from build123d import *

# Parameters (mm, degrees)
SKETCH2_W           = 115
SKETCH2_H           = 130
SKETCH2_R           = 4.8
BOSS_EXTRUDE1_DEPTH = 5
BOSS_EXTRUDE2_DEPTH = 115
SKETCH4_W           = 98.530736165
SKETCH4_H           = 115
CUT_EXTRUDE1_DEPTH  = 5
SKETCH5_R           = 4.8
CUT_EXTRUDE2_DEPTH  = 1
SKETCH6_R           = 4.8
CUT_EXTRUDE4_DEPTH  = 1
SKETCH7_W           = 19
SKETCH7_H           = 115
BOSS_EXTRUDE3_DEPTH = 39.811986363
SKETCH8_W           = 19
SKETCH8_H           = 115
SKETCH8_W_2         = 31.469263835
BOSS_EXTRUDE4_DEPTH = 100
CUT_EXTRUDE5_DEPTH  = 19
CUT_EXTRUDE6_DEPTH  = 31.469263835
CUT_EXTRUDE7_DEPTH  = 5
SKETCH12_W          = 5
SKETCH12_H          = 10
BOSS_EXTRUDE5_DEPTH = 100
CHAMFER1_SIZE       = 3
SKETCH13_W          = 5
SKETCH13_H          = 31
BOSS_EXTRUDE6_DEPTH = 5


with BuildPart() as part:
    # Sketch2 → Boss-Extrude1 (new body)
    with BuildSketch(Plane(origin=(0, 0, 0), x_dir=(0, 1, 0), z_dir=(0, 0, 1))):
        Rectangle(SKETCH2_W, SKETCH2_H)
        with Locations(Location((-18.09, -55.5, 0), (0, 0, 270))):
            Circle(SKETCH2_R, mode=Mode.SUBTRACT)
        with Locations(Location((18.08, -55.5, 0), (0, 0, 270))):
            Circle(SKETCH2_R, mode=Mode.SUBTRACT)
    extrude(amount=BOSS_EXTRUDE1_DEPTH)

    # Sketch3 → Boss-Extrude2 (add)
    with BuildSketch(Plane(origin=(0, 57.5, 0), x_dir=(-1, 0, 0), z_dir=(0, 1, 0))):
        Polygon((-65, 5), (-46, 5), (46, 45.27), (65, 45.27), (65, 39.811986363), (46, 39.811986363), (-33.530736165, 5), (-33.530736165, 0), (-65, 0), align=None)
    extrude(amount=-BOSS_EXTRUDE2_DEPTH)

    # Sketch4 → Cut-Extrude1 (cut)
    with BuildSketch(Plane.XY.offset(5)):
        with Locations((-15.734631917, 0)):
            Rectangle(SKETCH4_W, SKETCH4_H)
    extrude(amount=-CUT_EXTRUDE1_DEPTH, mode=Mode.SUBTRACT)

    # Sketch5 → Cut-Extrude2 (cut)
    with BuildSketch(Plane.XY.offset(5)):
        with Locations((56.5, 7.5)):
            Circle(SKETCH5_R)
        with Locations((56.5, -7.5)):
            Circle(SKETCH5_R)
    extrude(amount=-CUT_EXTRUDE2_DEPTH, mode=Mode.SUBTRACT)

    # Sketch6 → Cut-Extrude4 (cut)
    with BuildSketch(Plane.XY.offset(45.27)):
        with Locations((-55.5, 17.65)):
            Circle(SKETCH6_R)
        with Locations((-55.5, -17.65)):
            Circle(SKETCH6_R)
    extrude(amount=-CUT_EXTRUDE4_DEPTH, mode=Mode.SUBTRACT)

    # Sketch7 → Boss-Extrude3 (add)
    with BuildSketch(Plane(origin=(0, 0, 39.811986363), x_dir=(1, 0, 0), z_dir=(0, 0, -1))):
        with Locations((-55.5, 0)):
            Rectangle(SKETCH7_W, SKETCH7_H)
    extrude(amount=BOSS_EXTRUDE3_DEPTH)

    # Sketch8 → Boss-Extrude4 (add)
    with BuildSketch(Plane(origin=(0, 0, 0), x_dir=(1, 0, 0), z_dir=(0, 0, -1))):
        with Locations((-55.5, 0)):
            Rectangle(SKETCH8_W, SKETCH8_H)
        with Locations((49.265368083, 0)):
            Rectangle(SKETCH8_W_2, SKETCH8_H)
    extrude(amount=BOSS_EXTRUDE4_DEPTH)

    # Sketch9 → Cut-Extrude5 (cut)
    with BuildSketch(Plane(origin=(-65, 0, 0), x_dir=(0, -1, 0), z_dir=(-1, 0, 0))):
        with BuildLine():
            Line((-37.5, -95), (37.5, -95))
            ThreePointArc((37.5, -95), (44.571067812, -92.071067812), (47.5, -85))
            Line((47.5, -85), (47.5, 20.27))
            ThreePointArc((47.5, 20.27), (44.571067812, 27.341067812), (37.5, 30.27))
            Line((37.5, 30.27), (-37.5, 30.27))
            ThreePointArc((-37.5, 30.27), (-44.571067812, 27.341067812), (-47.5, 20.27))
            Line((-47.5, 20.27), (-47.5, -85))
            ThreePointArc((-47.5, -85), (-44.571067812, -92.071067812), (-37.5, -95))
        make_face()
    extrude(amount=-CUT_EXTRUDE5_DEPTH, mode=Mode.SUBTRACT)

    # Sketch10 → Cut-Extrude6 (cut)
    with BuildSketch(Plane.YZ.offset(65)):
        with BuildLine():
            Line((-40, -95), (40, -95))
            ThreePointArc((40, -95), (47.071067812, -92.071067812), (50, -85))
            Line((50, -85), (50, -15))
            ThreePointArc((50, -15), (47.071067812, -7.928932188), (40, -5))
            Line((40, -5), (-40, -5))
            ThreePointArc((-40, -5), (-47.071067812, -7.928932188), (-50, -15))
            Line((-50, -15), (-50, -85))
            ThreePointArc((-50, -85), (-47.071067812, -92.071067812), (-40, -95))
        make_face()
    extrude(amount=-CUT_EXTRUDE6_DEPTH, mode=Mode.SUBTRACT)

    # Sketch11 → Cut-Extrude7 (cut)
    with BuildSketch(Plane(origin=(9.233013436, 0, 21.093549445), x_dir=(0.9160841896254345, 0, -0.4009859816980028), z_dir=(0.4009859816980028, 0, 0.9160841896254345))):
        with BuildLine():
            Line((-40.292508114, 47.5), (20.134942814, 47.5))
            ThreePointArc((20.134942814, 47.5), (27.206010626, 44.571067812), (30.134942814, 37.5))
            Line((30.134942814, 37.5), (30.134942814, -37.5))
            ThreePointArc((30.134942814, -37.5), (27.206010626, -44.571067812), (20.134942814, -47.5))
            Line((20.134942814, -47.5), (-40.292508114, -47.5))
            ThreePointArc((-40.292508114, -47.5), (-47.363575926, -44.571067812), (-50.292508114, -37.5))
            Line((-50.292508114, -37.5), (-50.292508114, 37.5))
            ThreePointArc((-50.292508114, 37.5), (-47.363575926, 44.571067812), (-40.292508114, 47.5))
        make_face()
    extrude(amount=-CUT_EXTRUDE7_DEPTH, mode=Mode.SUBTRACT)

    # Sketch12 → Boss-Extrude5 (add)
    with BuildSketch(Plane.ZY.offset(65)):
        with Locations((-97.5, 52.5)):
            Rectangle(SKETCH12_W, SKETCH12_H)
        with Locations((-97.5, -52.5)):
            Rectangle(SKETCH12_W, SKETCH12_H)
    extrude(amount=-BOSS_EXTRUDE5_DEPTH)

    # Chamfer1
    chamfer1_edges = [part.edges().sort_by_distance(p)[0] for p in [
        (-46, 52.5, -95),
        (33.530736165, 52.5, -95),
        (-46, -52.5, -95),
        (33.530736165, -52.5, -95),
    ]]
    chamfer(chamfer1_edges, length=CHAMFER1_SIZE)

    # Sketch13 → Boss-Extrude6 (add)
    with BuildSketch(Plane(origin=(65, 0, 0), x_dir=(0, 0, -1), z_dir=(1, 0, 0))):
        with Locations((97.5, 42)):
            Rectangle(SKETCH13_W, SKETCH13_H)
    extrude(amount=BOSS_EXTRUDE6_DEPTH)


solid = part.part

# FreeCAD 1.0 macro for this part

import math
import FreeCAD as App
import Part
import Sketcher
Q = App.Units.Quantity


def edges_at(feature, points):
    """Names of the edges that pass closest to the given points."""
    edges = feature.Shape.Edges
    near = lambda p: min(range(len(edges)), key=lambda i: edges[i].distToShape(Part.Vertex(*p))[0])
    return sorted({f"Edge{near(p) + 1}" for p in points})

doc = App.newDocument("Part")
body = doc.addObject("PartDesign::Body", "Body")

sketch1 = doc.addObject("Sketcher::SketchObject", "Sketch")
body.addObject(sketch1)
sketch1.AttachmentSupport = (doc.XY_Plane, [""])
sketch1.MapMode = "FlatFace"
sketch1.addGeometry(Part.LineSegment(App.Vector(-65, -57.5, 0), App.Vector(65, -57.5, 0)), False)
sketch1.addGeometry(Part.LineSegment(App.Vector(65, -57.5, 0), App.Vector(65, 57.5, 0)), False)
sketch1.addGeometry(Part.LineSegment(App.Vector(65, 57.5, 0), App.Vector(-65, 57.5, 0)), False)
sketch1.addGeometry(Part.LineSegment(App.Vector(-65, 57.5, 0), App.Vector(-65, -57.5, 0)), False)
sketch1.addGeometry(Part.Circle(App.Vector(55.5, -18.1, 0), App.Vector(0, 0, 1), 4.8), False)
sketch1.addGeometry(Part.Circle(App.Vector(55.5, 18.1, 0), App.Vector(0, 0, 1), 4.8), False)
sketch1.addConstraint(Sketcher.Constraint("Coincident", 0, 2, 1, 1))
sketch1.addConstraint(Sketcher.Constraint("Coincident", 1, 2, 2, 1))
sketch1.addConstraint(Sketcher.Constraint("Coincident", 2, 2, 3, 1))
sketch1.addConstraint(Sketcher.Constraint("Coincident", 3, 2, 0, 1))
sketch1.addConstraint(Sketcher.Constraint("Horizontal", 0))
sketch1.addConstraint(Sketcher.Constraint("Vertical", 1))
sketch1.addConstraint(Sketcher.Constraint("Horizontal", 2))
sketch1.addConstraint(Sketcher.Constraint("Vertical", 3))
sketch1.addConstraint(Sketcher.Constraint("Equal", 4, 5))
sketch1.addConstraint(Sketcher.Constraint("Symmetric", 0, 2, 2, 2, -1, 1))
sketch1.addConstraint(Sketcher.Constraint("Vertical", 4, 3, 5, 3))
sketch1.addConstraint(Sketcher.Constraint("Diameter", 4, Q("9.6 mm")))
sketch1.addConstraint(Sketcher.Constraint("DistanceX", 0, 1, 0, 2, Q("130 mm")))
sketch1.addConstraint(Sketcher.Constraint("DistanceY", 1, 1, 1, 2, Q("115 mm")))
sketch1.addConstraint(Sketcher.Constraint("DistanceX", -1, 1, 4, 3, Q("55.5 mm")))
sketch1.addConstraint(Sketcher.Constraint("DistanceY", 4, 3, -1, 1, Q("18.09 mm")))
sketch1.addConstraint(Sketcher.Constraint("DistanceY", -1, 1, 5, 3, Q("18.08 mm")))
pad1 = doc.addObject("PartDesign::Pad", "Pad")
body.addObject(pad1)
pad1.Profile = sketch1
pad1.Length = 5

sketch2 = doc.addObject("Sketcher::SketchObject", "Sketch001")
body.addObject(sketch2)
sketch2.AttachmentSupport = (doc.XZ_Plane, [""])
sketch2.MapMode = "FlatFace"
sketch2.AttachmentOffset = App.Placement(App.Vector(0, 0, -57.5), App.Rotation())
sketch2.addGeometry(Part.LineSegment(App.Vector(46, 5, 0), App.Vector(65, 5, 0)), False)
sketch2.addGeometry(Part.LineSegment(App.Vector(65, 5, 0), App.Vector(65, 0, 0)), False)
sketch2.addGeometry(Part.LineSegment(App.Vector(65, 0, 0), App.Vector(34, 0, 0)), False)
sketch2.addGeometry(Part.LineSegment(App.Vector(34, 0, 0), App.Vector(34, 5, 0)), False)
sketch2.addGeometry(Part.LineSegment(App.Vector(34, 5, 0), App.Vector(-46, 40, 0)), False)
sketch2.addGeometry(Part.LineSegment(App.Vector(-46, 40, 0), App.Vector(-65, 40, 0)), False)
sketch2.addGeometry(Part.LineSegment(App.Vector(-65, 40, 0), App.Vector(-65, 45, 0)), False)
sketch2.addGeometry(Part.LineSegment(App.Vector(-65, 45, 0), App.Vector(-46, 45, 0)), False)
sketch2.addGeometry(Part.LineSegment(App.Vector(-46, 45, 0), App.Vector(46, 5, 0)), False)
sketch2.addConstraint(Sketcher.Constraint("Coincident", 0, 2, 1, 1))
sketch2.addConstraint(Sketcher.Constraint("Coincident", 1, 2, 2, 1))
sketch2.addConstraint(Sketcher.Constraint("Coincident", 2, 2, 3, 1))
sketch2.addConstraint(Sketcher.Constraint("Coincident", 3, 2, 4, 1))
sketch2.addConstraint(Sketcher.Constraint("Coincident", 4, 2, 5, 1))
sketch2.addConstraint(Sketcher.Constraint("Coincident", 5, 2, 6, 1))
sketch2.addConstraint(Sketcher.Constraint("Coincident", 6, 2, 7, 1))
sketch2.addConstraint(Sketcher.Constraint("Coincident", 7, 2, 8, 1))
sketch2.addConstraint(Sketcher.Constraint("Coincident", 8, 2, 0, 1))
sketch2.addConstraint(Sketcher.Constraint("Horizontal", 0))
sketch2.addConstraint(Sketcher.Constraint("Vertical", 1))
sketch2.addConstraint(Sketcher.Constraint("Horizontal", 2))
sketch2.addConstraint(Sketcher.Constraint("Vertical", 3))
sketch2.addConstraint(Sketcher.Constraint("Horizontal", 5))
sketch2.addConstraint(Sketcher.Constraint("Vertical", 6))
sketch2.addConstraint(Sketcher.Constraint("Horizontal", 7))
sketch2.addConstraint(Sketcher.Constraint("PointOnObject", 1, 2, -1))
sketch2.addConstraint(Sketcher.Constraint("Parallel", 4, 8))
sketch2.addConstraint(Sketcher.Constraint("Horizontal", 0, 2, 3, 2))
sketch2.addConstraint(Sketcher.Constraint("Vertical", 4, 2, 7, 2))
sketch2.addConstraint(Sketcher.Constraint("Equal", 0, 5))
sketch2.addConstraint(Sketcher.Constraint("DistanceX", 0, 1, 0, 2, Q("19 mm")))
sketch2.addConstraint(Sketcher.Constraint("DistanceY", 1, 2, 1, 1, Q("5 mm")))
sketch2.addConstraint(Sketcher.Constraint("DistanceX", -1, 1, 0, 2, Q("65 mm")))
sketch2.addConstraint(Sketcher.Constraint("DistanceX", 4, 2, -1, 1, Q("46 mm")))
sketch2.addConstraint(Sketcher.Constraint("DistanceY", -1, 1, 6, 2, Q("45.27 mm")))
sketch2.addConstraint(Sketcher.Constraint("Distance", 4, Q("86.815969 mm")))
pad2 = doc.addObject("PartDesign::Pad", "Pad001")
body.addObject(pad2)
pad2.Profile = sketch2
pad2.Length = 115

sketch3 = doc.addObject("Sketcher::SketchObject", "Sketch002")
body.addObject(sketch3)
sketch3.AttachmentSupport = (doc.XY_Plane, [""])
sketch3.MapMode = "FlatFace"
sketch3.AttachmentOffset = App.Placement(App.Vector(0, 0, 5), App.Rotation())
sketch3.addGeometry(Part.LineSegment(App.Vector(-65, 58, 0), App.Vector(-65, -58, 0)), False)
sketch3.addGeometry(Part.LineSegment(App.Vector(-65, -58, 0), App.Vector(34, -58, 0)), False)
sketch3.addGeometry(Part.LineSegment(App.Vector(34, -58, 0), App.Vector(34, 58, 0)), False)
sketch3.addGeometry(Part.LineSegment(App.Vector(34, 58, 0), App.Vector(-65, 58, 0)), False)
sketch3.addConstraint(Sketcher.Constraint("Coincident", 0, 2, 1, 1))
sketch3.addConstraint(Sketcher.Constraint("Coincident", 1, 2, 2, 1))
sketch3.addConstraint(Sketcher.Constraint("Coincident", 2, 2, 3, 1))
sketch3.addConstraint(Sketcher.Constraint("Coincident", 3, 2, 0, 1))
sketch3.addConstraint(Sketcher.Constraint("Vertical", 0))
sketch3.addConstraint(Sketcher.Constraint("Horizontal", 1))
sketch3.addConstraint(Sketcher.Constraint("Vertical", 2))
sketch3.addConstraint(Sketcher.Constraint("Horizontal", 3))
sketch3.addConstraint(Sketcher.Constraint("DistanceY", 0, 2, 0, 1, Q("115 mm")))
sketch3.addConstraint(Sketcher.Constraint("DistanceX", 0, 2, -1, 1, Q("65 mm")))
sketch3.addConstraint(Sketcher.Constraint("DistanceY", 0, 2, -1, 1, Q("57.5 mm")))
sketch3.addConstraint(Sketcher.Constraint("DistanceX", 1, 1, 1, 2, Q("98.530736 mm")))
pocket1 = doc.addObject("PartDesign::Pocket", "Pocket")
body.addObject(pocket1)
pocket1.Profile = sketch3
pocket1.Length = 5

sketch4 = doc.addObject("Sketcher::SketchObject", "Sketch003")
body.addObject(sketch4)
sketch4.AttachmentSupport = (doc.XY_Plane, [""])
sketch4.MapMode = "FlatFace"
sketch4.AttachmentOffset = App.Placement(App.Vector(0, 0, 5), App.Rotation())
sketch4.addGeometry(Part.Circle(App.Vector(56.5, 7.5, 0), App.Vector(0, 0, 1), 4.8), False)
sketch4.addGeometry(Part.Circle(App.Vector(56.5, -7.5, 0), App.Vector(0, 0, 1), 4.8), False)
sketch4.addConstraint(Sketcher.Constraint("Equal", 0, 1))
sketch4.addConstraint(Sketcher.Constraint("Symmetric", 0, 3, 1, 3, -1))
sketch4.addConstraint(Sketcher.Constraint("Diameter", 0, Q("9.6 mm")))
sketch4.addConstraint(Sketcher.Constraint("DistanceY", 1, 3, 0, 3, Q("15 mm")))
sketch4.addConstraint(Sketcher.Constraint("DistanceX", -1, 1, 0, 3, Q("56.5 mm")))
pocket2 = doc.addObject("PartDesign::Pocket", "Pocket001")
body.addObject(pocket2)
pocket2.Profile = sketch4
pocket2.Length = 1

sketch5 = doc.addObject("Sketcher::SketchObject", "Sketch004")
body.addObject(sketch5)
sketch5.AttachmentSupport = (doc.XY_Plane, [""])
sketch5.MapMode = "FlatFace"
sketch5.AttachmentOffset = App.Placement(App.Vector(0, 0, 45.27), App.Rotation())
sketch5.addGeometry(Part.Circle(App.Vector(-55.5, 17.6, 0), App.Vector(0, 0, 1), 4.8), False)
sketch5.addGeometry(Part.Circle(App.Vector(-55.5, -17.6, 0), App.Vector(0, 0, 1), 4.8), False)
sketch5.addConstraint(Sketcher.Constraint("Equal", 0, 1))
sketch5.addConstraint(Sketcher.Constraint("Symmetric", 0, 3, 1, 3, -1))
sketch5.addConstraint(Sketcher.Constraint("Diameter", 0, Q("9.6 mm")))
sketch5.addConstraint(Sketcher.Constraint("DistanceX", 0, 3, -1, 1, Q("55.5 mm")))
sketch5.addConstraint(Sketcher.Constraint("DistanceY", 1, 3, 0, 3, Q("35.3 mm")))
pocket3 = doc.addObject("PartDesign::Pocket", "Pocket002")
body.addObject(pocket3)
pocket3.Profile = sketch5
pocket3.Length = 1

sketch6 = doc.addObject("Sketcher::SketchObject", "Sketch005")
body.addObject(sketch6)
sketch6.AttachmentSupport = (doc.XY_Plane, [""])
sketch6.MapMode = "FlatFace"
sketch6.AttachmentOffset = App.Placement(App.Vector(0, 0, 39.811986), App.Rotation())
sketch6.addGeometry(Part.LineSegment(App.Vector(-65, -58, 0), App.Vector(-65, 58, 0)), False)
sketch6.addGeometry(Part.LineSegment(App.Vector(-65, 58, 0), App.Vector(-46, 58, 0)), False)
sketch6.addGeometry(Part.LineSegment(App.Vector(-46, 58, 0), App.Vector(-46, -58, 0)), False)
sketch6.addGeometry(Part.LineSegment(App.Vector(-46, -58, 0), App.Vector(-65, -58, 0)), False)
sketch6.addConstraint(Sketcher.Constraint("Coincident", 0, 2, 1, 1))
sketch6.addConstraint(Sketcher.Constraint("Coincident", 1, 2, 2, 1))
sketch6.addConstraint(Sketcher.Constraint("Coincident", 2, 2, 3, 1))
sketch6.addConstraint(Sketcher.Constraint("Coincident", 3, 2, 0, 1))
sketch6.addConstraint(Sketcher.Constraint("Vertical", 0))
sketch6.addConstraint(Sketcher.Constraint("Horizontal", 1))
sketch6.addConstraint(Sketcher.Constraint("Vertical", 2))
sketch6.addConstraint(Sketcher.Constraint("Horizontal", 3))
sketch6.addConstraint(Sketcher.Constraint("DistanceX", 1, 1, 1, 2, Q("19 mm")))
sketch6.addConstraint(Sketcher.Constraint("DistanceY", 0, 1, 0, 2, Q("115 mm")))
sketch6.addConstraint(Sketcher.Constraint("DistanceX", 0, 2, -1, 1, Q("65 mm")))
sketch6.addConstraint(Sketcher.Constraint("DistanceY", -1, 1, 0, 2, Q("57.5 mm")))
pad3 = doc.addObject("PartDesign::Pad", "Pad002")
body.addObject(pad3)
pad3.Profile = sketch6
pad3.Length = 39.811986
pad3.Reversed = True

sketch7 = doc.addObject("Sketcher::SketchObject", "Sketch006")
body.addObject(sketch7)
sketch7.AttachmentSupport = (doc.XY_Plane, [""])
sketch7.MapMode = "FlatFace"
sketch7.addGeometry(Part.LineSegment(App.Vector(-65, -58, 0), App.Vector(-65, 58, 0)), False)
sketch7.addGeometry(Part.LineSegment(App.Vector(-65, 58, 0), App.Vector(-46, 58, 0)), False)
sketch7.addGeometry(Part.LineSegment(App.Vector(-46, 58, 0), App.Vector(-46, -58, 0)), False)
sketch7.addGeometry(Part.LineSegment(App.Vector(-46, -58, 0), App.Vector(-65, -58, 0)), False)
sketch7.addGeometry(Part.LineSegment(App.Vector(34, -58, 0), App.Vector(34, 58, 0)), False)
sketch7.addGeometry(Part.LineSegment(App.Vector(34, 58, 0), App.Vector(65, 58, 0)), False)
sketch7.addGeometry(Part.LineSegment(App.Vector(65, 58, 0), App.Vector(65, -58, 0)), False)
sketch7.addGeometry(Part.LineSegment(App.Vector(65, -58, 0), App.Vector(34, -58, 0)), False)
sketch7.addConstraint(Sketcher.Constraint("Coincident", 0, 2, 1, 1))
sketch7.addConstraint(Sketcher.Constraint("Coincident", 1, 2, 2, 1))
sketch7.addConstraint(Sketcher.Constraint("Coincident", 2, 2, 3, 1))
sketch7.addConstraint(Sketcher.Constraint("Coincident", 3, 2, 0, 1))
sketch7.addConstraint(Sketcher.Constraint("Coincident", 4, 2, 5, 1))
sketch7.addConstraint(Sketcher.Constraint("Coincident", 5, 2, 6, 1))
sketch7.addConstraint(Sketcher.Constraint("Coincident", 6, 2, 7, 1))
sketch7.addConstraint(Sketcher.Constraint("Coincident", 7, 2, 4, 1))
sketch7.addConstraint(Sketcher.Constraint("Vertical", 0))
sketch7.addConstraint(Sketcher.Constraint("Horizontal", 1))
sketch7.addConstraint(Sketcher.Constraint("Vertical", 2))
sketch7.addConstraint(Sketcher.Constraint("Horizontal", 3))
sketch7.addConstraint(Sketcher.Constraint("Vertical", 4))
sketch7.addConstraint(Sketcher.Constraint("Horizontal", 5))
sketch7.addConstraint(Sketcher.Constraint("Vertical", 6))
sketch7.addConstraint(Sketcher.Constraint("Horizontal", 7))
sketch7.addConstraint(Sketcher.Constraint("Symmetric", 3, 2, 5, 2, -1, 1))
sketch7.addConstraint(Sketcher.Constraint("Horizontal", 1, 2, 4, 2))
sketch7.addConstraint(Sketcher.Constraint("Horizontal", 3, 2, 6, 2))
sketch7.addConstraint(Sketcher.Constraint("DistanceX", 1, 1, 1, 2, Q("19 mm")))
sketch7.addConstraint(Sketcher.Constraint("DistanceY", 0, 1, 0, 2, Q("115 mm")))
sketch7.addConstraint(Sketcher.Constraint("DistanceX", 0, 2, -1, 1, Q("65 mm")))
sketch7.addConstraint(Sketcher.Constraint("DistanceX", 5, 1, 5, 2, Q("31.469264 mm")))
pad4 = doc.addObject("PartDesign::Pad", "Pad003")
body.addObject(pad4)
pad4.Profile = sketch7
pad4.Length = 100
pad4.Reversed = True

sketch8 = doc.addObject("Sketcher::SketchObject", "Sketch007")
body.addObject(sketch8)
sketch8.AttachmentSupport = (doc.YZ_Plane, [""])
sketch8.MapMode = "FlatFace"
sketch8.AttachmentOffset = App.Placement(App.Vector(0, 0, -65), App.Rotation())
sketch8.addGeometry(Part.LineSegment(App.Vector(38, -95, 0), App.Vector(-38, -95, 0)), False)
sketch8.addGeometry(Part.ArcOfCircle(Part.Circle(App.Vector(-38, -85, 0), App.Vector(0, 0, 1), 10), math.radians(180), math.radians(270)), False)
sketch8.addGeometry(Part.LineSegment(App.Vector(-48, -85, 0), App.Vector(-48, 20, 0)), False)
sketch8.addGeometry(Part.ArcOfCircle(Part.Circle(App.Vector(-38, 20, 0), App.Vector(0, 0, 1), 10), math.radians(90), math.radians(180)), False)
sketch8.addGeometry(Part.LineSegment(App.Vector(-38, 30, 0), App.Vector(38, 30, 0)), False)
sketch8.addGeometry(Part.ArcOfCircle(Part.Circle(App.Vector(38, 20, 0), App.Vector(0, 0, 1), 10), math.radians(0), math.radians(90)), False)
sketch8.addGeometry(Part.LineSegment(App.Vector(48, 20, 0), App.Vector(48, -85, 0)), False)
sketch8.addGeometry(Part.ArcOfCircle(Part.Circle(App.Vector(38, -85, 0), App.Vector(0, 0, 1), 10), math.radians(-90), math.radians(0)), False)
sketch8.addConstraint(Sketcher.Constraint("Tangent", 0, 2, 1, 2))
sketch8.addConstraint(Sketcher.Constraint("Tangent", 1, 1, 2, 1))
sketch8.addConstraint(Sketcher.Constraint("Tangent", 2, 2, 3, 2))
sketch8.addConstraint(Sketcher.Constraint("Tangent", 3, 1, 4, 1))
sketch8.addConstraint(Sketcher.Constraint("Tangent", 4, 2, 5, 2))
sketch8.addConstraint(Sketcher.Constraint("Tangent", 5, 1, 6, 1))
sketch8.addConstraint(Sketcher.Constraint("Tangent", 6, 2, 7, 2))
sketch8.addConstraint(Sketcher.Constraint("Tangent", 7, 1, 0, 1))
sketch8.addConstraint(Sketcher.Constraint("Horizontal", 0))
sketch8.addConstraint(Sketcher.Constraint("Vertical", 2))
sketch8.addConstraint(Sketcher.Constraint("Horizontal", 4))
sketch8.addConstraint(Sketcher.Constraint("Vertical", 6))
sketch8.addConstraint(Sketcher.Constraint("Equal", 1, 3))
sketch8.addConstraint(Sketcher.Constraint("Equal", 3, 5))
sketch8.addConstraint(Sketcher.Constraint("Equal", 5, 7))
sketch8.addConstraint(Sketcher.Constraint("Radius", 1, Q("10 mm")))
sketch8.addConstraint(Sketcher.Constraint("DistanceX", 0, 2, 0, 1, Q("75 mm")))
sketch8.addConstraint(Sketcher.Constraint("DistanceY", 1, 3, -1, 1, Q("85 mm")))
sketch8.addConstraint(Sketcher.Constraint("DistanceY", 2, 1, 2, 2, Q("105.27 mm")))
sketch8.addConstraint(Sketcher.Constraint("DistanceX", 1, 3, -1, 1, Q("37.5 mm")))
pocket4 = doc.addObject("PartDesign::Pocket", "Pocket003")
body.addObject(pocket4)
pocket4.Profile = sketch8
pocket4.Length = 19
pocket4.Reversed = True

sketch9 = doc.addObject("Sketcher::SketchObject", "Sketch008")
body.addObject(sketch9)
sketch9.AttachmentSupport = (doc.YZ_Plane, [""])
sketch9.MapMode = "FlatFace"
sketch9.AttachmentOffset = App.Placement(App.Vector(0, 0, 65), App.Rotation())
sketch9.addGeometry(Part.LineSegment(App.Vector(-40, -95, 0), App.Vector(40, -95, 0)), False)
sketch9.addGeometry(Part.ArcOfCircle(Part.Circle(App.Vector(40, -85, 0), App.Vector(0, 0, 1), 10), math.radians(-90), math.radians(0)), False)
sketch9.addGeometry(Part.LineSegment(App.Vector(50, -85, 0), App.Vector(50, -15, 0)), False)
sketch9.addGeometry(Part.ArcOfCircle(Part.Circle(App.Vector(40, -15, 0), App.Vector(0, 0, 1), 10), math.radians(0), math.radians(90)), False)
sketch9.addGeometry(Part.LineSegment(App.Vector(40, -5, 0), App.Vector(-40, -5, 0)), False)
sketch9.addGeometry(Part.ArcOfCircle(Part.Circle(App.Vector(-40, -15, 0), App.Vector(0, 0, 1), 10), math.radians(90), math.radians(180)), False)
sketch9.addGeometry(Part.LineSegment(App.Vector(-50, -15, 0), App.Vector(-50, -85, 0)), False)
sketch9.addGeometry(Part.ArcOfCircle(Part.Circle(App.Vector(-40, -85, 0), App.Vector(0, 0, 1), 10), math.radians(180), math.radians(270)), False)
sketch9.addConstraint(Sketcher.Constraint("Tangent", 0, 2, 1, 1))
sketch9.addConstraint(Sketcher.Constraint("Tangent", 1, 2, 2, 1))
sketch9.addConstraint(Sketcher.Constraint("Tangent", 2, 2, 3, 1))
sketch9.addConstraint(Sketcher.Constraint("Tangent", 3, 2, 4, 1))
sketch9.addConstraint(Sketcher.Constraint("Tangent", 4, 2, 5, 1))
sketch9.addConstraint(Sketcher.Constraint("Tangent", 5, 2, 6, 1))
sketch9.addConstraint(Sketcher.Constraint("Tangent", 6, 2, 7, 1))
sketch9.addConstraint(Sketcher.Constraint("Tangent", 7, 2, 0, 1))
sketch9.addConstraint(Sketcher.Constraint("Horizontal", 0))
sketch9.addConstraint(Sketcher.Constraint("Vertical", 2))
sketch9.addConstraint(Sketcher.Constraint("Horizontal", 4))
sketch9.addConstraint(Sketcher.Constraint("Vertical", 6))
sketch9.addConstraint(Sketcher.Constraint("Equal", 1, 3))
sketch9.addConstraint(Sketcher.Constraint("Equal", 3, 5))
sketch9.addConstraint(Sketcher.Constraint("Equal", 5, 7))
sketch9.addConstraint(Sketcher.Constraint("Radius", 1, Q("10 mm")))
sketch9.addConstraint(Sketcher.Constraint("DistanceX", 0, 1, 0, 2, Q("80 mm")))
sketch9.addConstraint(Sketcher.Constraint("DistanceY", 2, 1, 2, 2, Q("70 mm")))
sketch9.addConstraint(Sketcher.Constraint("DistanceX", -1, 1, 1, 3, Q("40 mm")))
sketch9.addConstraint(Sketcher.Constraint("DistanceY", 1, 3, -1, 1, Q("85 mm")))
pocket5 = doc.addObject("PartDesign::Pocket", "Pocket004")
body.addObject(pocket5)
pocket5.Profile = sketch9
pocket5.Length = 31.469264

sketch10 = doc.addObject("Sketcher::SketchObject", "Sketch009")
body.addObject(sketch10)
sketch10.Placement = App.Placement(App.Vector(9.233013, 0, 21.093549), App.Rotation(App.Vector(0.91608419, 0, -0.400985982), App.Vector(0, 1.000000001, 0), App.Vector(0.400985982, 0, 0.91608419), "ZXY"))
sketch10.addGeometry(Part.LineSegment(App.Vector(20, 48, 0), App.Vector(-40, 48, 0)), False)
sketch10.addGeometry(Part.ArcOfCircle(Part.Circle(App.Vector(-40, 38, 0), App.Vector(0, 0, 1), 10), math.radians(90), math.radians(180)), False)
sketch10.addGeometry(Part.LineSegment(App.Vector(-50, 38, 0), App.Vector(-50, -38, 0)), False)
sketch10.addGeometry(Part.ArcOfCircle(Part.Circle(App.Vector(-40, -38, 0), App.Vector(0, 0, 1), 10), math.radians(180), math.radians(270)), False)
sketch10.addGeometry(Part.LineSegment(App.Vector(-40, -48, 0), App.Vector(20, -48, 0)), False)
sketch10.addGeometry(Part.ArcOfCircle(Part.Circle(App.Vector(20, -38, 0), App.Vector(0, 0, 1), 10), math.radians(-90), math.radians(0)), False)
sketch10.addGeometry(Part.LineSegment(App.Vector(30, -38, 0), App.Vector(30, 38, 0)), False)
sketch10.addGeometry(Part.ArcOfCircle(Part.Circle(App.Vector(20, 38, 0), App.Vector(0, 0, 1), 10), math.radians(0), math.radians(90)), False)
sketch10.addConstraint(Sketcher.Constraint("Tangent", 0, 2, 1, 1))
sketch10.addConstraint(Sketcher.Constraint("Tangent", 1, 2, 2, 1))
sketch10.addConstraint(Sketcher.Constraint("Tangent", 2, 2, 3, 1))
sketch10.addConstraint(Sketcher.Constraint("Tangent", 3, 2, 4, 1))
sketch10.addConstraint(Sketcher.Constraint("Tangent", 4, 2, 5, 1))
sketch10.addConstraint(Sketcher.Constraint("Tangent", 5, 2, 6, 1))
sketch10.addConstraint(Sketcher.Constraint("Tangent", 6, 2, 7, 1))
sketch10.addConstraint(Sketcher.Constraint("Tangent", 7, 2, 0, 1))
sketch10.addConstraint(Sketcher.Constraint("Horizontal", 0))
sketch10.addConstraint(Sketcher.Constraint("Vertical", 2))
sketch10.addConstraint(Sketcher.Constraint("Horizontal", 4))
sketch10.addConstraint(Sketcher.Constraint("Vertical", 6))
sketch10.addConstraint(Sketcher.Constraint("Equal", 1, 3))
sketch10.addConstraint(Sketcher.Constraint("Equal", 3, 5))
sketch10.addConstraint(Sketcher.Constraint("Equal", 5, 7))
sketch10.addConstraint(Sketcher.Constraint("Radius", 1, Q("10 mm")))
sketch10.addConstraint(Sketcher.Constraint("DistanceY", 2, 2, 2, 1, Q("75 mm")))
sketch10.addConstraint(Sketcher.Constraint("DistanceY", -1, 1, 1, 3, Q("37.5 mm")))
sketch10.addConstraint(Sketcher.Constraint("DistanceX", 0, 2, 0, 1, Q("60.427451 mm")))
sketch10.addConstraint(Sketcher.Constraint("DistanceX", 1, 3, -1, 1, Q("40.292508 mm")))
pocket6 = doc.addObject("PartDesign::Pocket", "Pocket005")
body.addObject(pocket6)
pocket6.Profile = sketch10
pocket6.Length = 5

sketch11 = doc.addObject("Sketcher::SketchObject", "Sketch010")
body.addObject(sketch11)
sketch11.AttachmentSupport = (doc.YZ_Plane, [""])
sketch11.MapMode = "FlatFace"
sketch11.AttachmentOffset = App.Placement(App.Vector(0, 0, -65), App.Rotation())
sketch11.addGeometry(Part.LineSegment(App.Vector(58, -100, 0), App.Vector(48, -100, 0)), False)
sketch11.addGeometry(Part.LineSegment(App.Vector(48, -100, 0), App.Vector(48, -95, 0)), False)
sketch11.addGeometry(Part.LineSegment(App.Vector(48, -95, 0), App.Vector(58, -95, 0)), False)
sketch11.addGeometry(Part.LineSegment(App.Vector(58, -95, 0), App.Vector(58, -100, 0)), False)
sketch11.addGeometry(Part.LineSegment(App.Vector(-48, -100, 0), App.Vector(-58, -100, 0)), False)
sketch11.addGeometry(Part.LineSegment(App.Vector(-58, -100, 0), App.Vector(-58, -95, 0)), False)
sketch11.addGeometry(Part.LineSegment(App.Vector(-58, -95, 0), App.Vector(-48, -95, 0)), False)
sketch11.addGeometry(Part.LineSegment(App.Vector(-48, -95, 0), App.Vector(-48, -100, 0)), False)
sketch11.addConstraint(Sketcher.Constraint("Coincident", 0, 2, 1, 1))
sketch11.addConstraint(Sketcher.Constraint("Coincident", 1, 2, 2, 1))
sketch11.addConstraint(Sketcher.Constraint("Coincident", 2, 2, 3, 1))
sketch11.addConstraint(Sketcher.Constraint("Coincident", 3, 2, 0, 1))
sketch11.addConstraint(Sketcher.Constraint("Coincident", 4, 2, 5, 1))
sketch11.addConstraint(Sketcher.Constraint("Coincident", 5, 2, 6, 1))
sketch11.addConstraint(Sketcher.Constraint("Coincident", 6, 2, 7, 1))
sketch11.addConstraint(Sketcher.Constraint("Coincident", 7, 2, 4, 1))
sketch11.addConstraint(Sketcher.Constraint("Horizontal", 0))
sketch11.addConstraint(Sketcher.Constraint("Vertical", 1))
sketch11.addConstraint(Sketcher.Constraint("Horizontal", 2))
sketch11.addConstraint(Sketcher.Constraint("Vertical", 3))
sketch11.addConstraint(Sketcher.Constraint("Horizontal", 4))
sketch11.addConstraint(Sketcher.Constraint("Vertical", 5))
sketch11.addConstraint(Sketcher.Constraint("Horizontal", 6))
sketch11.addConstraint(Sketcher.Constraint("Vertical", 7))
sketch11.addConstraint(Sketcher.Constraint("Symmetric", 3, 2, 4, 2, -2))
sketch11.addConstraint(Sketcher.Constraint("Symmetric", 1, 2, 6, 2, -2))
sketch11.addConstraint(Sketcher.Constraint("DistanceX", 0, 2, 0, 1, Q("10 mm")))
sketch11.addConstraint(Sketcher.Constraint("DistanceY", 1, 1, 1, 2, Q("5 mm")))
sketch11.addConstraint(Sketcher.Constraint("DistanceY", 0, 2, -1, 1, Q("100 mm")))
sketch11.addConstraint(Sketcher.Constraint("DistanceX", 4, 2, 0, 2, Q("105 mm")))
pad5 = doc.addObject("PartDesign::Pad", "Pad004")
body.addObject(pad5)
pad5.Profile = sketch11
pad5.Length = 100
doc.recompute()

chamfer = doc.addObject("PartDesign::Chamfer", "Chamfer")
body.addObject(chamfer)
chamfer.Base = (pad5, edges_at(pad5, [
    (-46, 52.5, -95),
    (33.531, 52.5, -95),
    (-46, -52.5, -95),
    (33.531, -52.5, -95),
]))
chamfer.Size = 3

sketch12 = doc.addObject("Sketcher::SketchObject", "Sketch011")
body.addObject(sketch12)
sketch12.AttachmentSupport = (doc.YZ_Plane, [""])
sketch12.MapMode = "FlatFace"
sketch12.AttachmentOffset = App.Placement(App.Vector(0, 0, 65), App.Rotation())
sketch12.addGeometry(Part.LineSegment(App.Vector(58, -95, 0), App.Vector(26, -95, 0)), False)
sketch12.addGeometry(Part.LineSegment(App.Vector(26, -95, 0), App.Vector(26, -100, 0)), False)
sketch12.addGeometry(Part.LineSegment(App.Vector(26, -100, 0), App.Vector(58, -100, 0)), False)
sketch12.addGeometry(Part.LineSegment(App.Vector(58, -100, 0), App.Vector(58, -95, 0)), False)
sketch12.addConstraint(Sketcher.Constraint("Coincident", 0, 2, 1, 1))
sketch12.addConstraint(Sketcher.Constraint("Coincident", 1, 2, 2, 1))
sketch12.addConstraint(Sketcher.Constraint("Coincident", 2, 2, 3, 1))
sketch12.addConstraint(Sketcher.Constraint("Coincident", 3, 2, 0, 1))
sketch12.addConstraint(Sketcher.Constraint("Horizontal", 0))
sketch12.addConstraint(Sketcher.Constraint("Vertical", 1))
sketch12.addConstraint(Sketcher.Constraint("Horizontal", 2))
sketch12.addConstraint(Sketcher.Constraint("Vertical", 3))
sketch12.addConstraint(Sketcher.Constraint("DistanceX", 0, 2, 0, 1, Q("31 mm")))
sketch12.addConstraint(Sketcher.Constraint("DistanceY", 1, 2, 1, 1, Q("5 mm")))
sketch12.addConstraint(Sketcher.Constraint("DistanceY", 0, 2, -1, 1, Q("95 mm")))
sketch12.addConstraint(Sketcher.Constraint("DistanceX", -1, 1, 0, 2, Q("26.5 mm")))
pad6 = doc.addObject("PartDesign::Pad", "Pad005")
body.addObject(pad6)
pad6.Profile = sketch12
pad6.Length = 5

doc.recompute()
